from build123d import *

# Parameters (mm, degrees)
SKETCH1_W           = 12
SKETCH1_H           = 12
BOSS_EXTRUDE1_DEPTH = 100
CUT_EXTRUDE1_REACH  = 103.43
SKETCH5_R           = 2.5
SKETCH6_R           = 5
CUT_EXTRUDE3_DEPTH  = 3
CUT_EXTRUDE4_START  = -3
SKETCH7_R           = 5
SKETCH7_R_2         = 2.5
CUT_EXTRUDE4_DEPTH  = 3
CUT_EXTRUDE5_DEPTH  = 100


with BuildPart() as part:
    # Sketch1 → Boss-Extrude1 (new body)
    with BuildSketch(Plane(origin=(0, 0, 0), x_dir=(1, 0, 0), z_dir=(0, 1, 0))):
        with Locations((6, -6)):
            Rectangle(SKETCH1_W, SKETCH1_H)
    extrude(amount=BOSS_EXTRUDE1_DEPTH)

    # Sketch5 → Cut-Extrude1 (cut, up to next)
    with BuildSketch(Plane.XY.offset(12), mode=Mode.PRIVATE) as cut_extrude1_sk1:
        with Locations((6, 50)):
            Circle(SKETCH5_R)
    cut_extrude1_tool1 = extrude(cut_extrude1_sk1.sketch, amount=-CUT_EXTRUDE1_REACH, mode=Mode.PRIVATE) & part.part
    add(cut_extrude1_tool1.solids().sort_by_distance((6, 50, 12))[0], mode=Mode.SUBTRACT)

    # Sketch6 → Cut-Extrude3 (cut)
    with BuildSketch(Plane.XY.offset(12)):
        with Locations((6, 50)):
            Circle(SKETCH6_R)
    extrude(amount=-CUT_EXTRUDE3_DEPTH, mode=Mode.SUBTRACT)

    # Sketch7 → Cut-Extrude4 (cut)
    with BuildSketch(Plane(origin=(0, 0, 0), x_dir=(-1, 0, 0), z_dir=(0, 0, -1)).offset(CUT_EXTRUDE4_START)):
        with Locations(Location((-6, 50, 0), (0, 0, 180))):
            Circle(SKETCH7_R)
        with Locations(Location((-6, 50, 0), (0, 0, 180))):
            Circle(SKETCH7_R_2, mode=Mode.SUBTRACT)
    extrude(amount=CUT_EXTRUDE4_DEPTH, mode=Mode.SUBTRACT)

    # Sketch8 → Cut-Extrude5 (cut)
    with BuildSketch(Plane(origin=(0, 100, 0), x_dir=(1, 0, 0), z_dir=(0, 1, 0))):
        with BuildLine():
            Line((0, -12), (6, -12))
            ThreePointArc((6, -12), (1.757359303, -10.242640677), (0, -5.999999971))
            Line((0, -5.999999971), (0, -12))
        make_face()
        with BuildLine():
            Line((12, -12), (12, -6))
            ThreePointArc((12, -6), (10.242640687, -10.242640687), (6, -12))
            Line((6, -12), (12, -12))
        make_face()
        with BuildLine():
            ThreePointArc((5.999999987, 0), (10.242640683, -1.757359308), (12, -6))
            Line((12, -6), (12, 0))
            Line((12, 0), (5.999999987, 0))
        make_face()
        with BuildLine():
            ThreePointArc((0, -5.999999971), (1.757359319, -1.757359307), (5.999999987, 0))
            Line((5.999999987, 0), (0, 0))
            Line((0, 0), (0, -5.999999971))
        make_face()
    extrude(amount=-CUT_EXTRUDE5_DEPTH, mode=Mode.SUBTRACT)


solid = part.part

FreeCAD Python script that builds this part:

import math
import FreeCAD as App
import Part
import Sketcher

V = App.Vector


def add_polygon(sketch, points):
    """Adds a closed chain of lines whose ends are joined by coincident constraints."""
    first, n = sketch.GeometryCount, len(points)
    for a, b in zip(points, points[1:] + points[:1]):
        sketch.addGeometry(Part.LineSegment(App.Vector(*a, 0), App.Vector(*b, 0)), False)
    for i in range(n):
        sketch.addConstraint(Sketcher.Constraint("Coincident", first + i, 2, first + (i + 1) % n, 1))

doc = App.newDocument("Part")
body = doc.addObject("PartDesign::Body", "Body")

# Sketch on XZ plane
sketch1 = body.newObject("Sketcher::SketchObject", "Sketch")
sketch1.AttachmentSupport = (doc.getObject("XZ_Plane"), [""])
sketch1.MapMode = "FlatFace"
add_polygon(sketch1, [(0, 0), (0, 12), (12, 12), (12, 0)])  # lines 0-3
sketch1.addConstraint(Sketcher.Constraint("Vertical", 0))
sketch1.addConstraint(Sketcher.Constraint("Horizontal", 1))
sketch1.addConstraint(Sketcher.Constraint("Vertical", 2))
sketch1.addConstraint(Sketcher.Constraint("Horizontal", 3))
sketch1.addConstraint(Sketcher.Constraint("Coincident", 3, 2, -1, 1))
sketch1.addConstraint(Sketcher.Constraint("Equal", 3, 0))
sketch1.addConstraint(Sketcher.Constraint("DistanceX", 1, 1, 1, 2, 12.0))
pad1 = body.newObject("PartDesign::Pad", "Pad")
pad1.Profile = sketch1
pad1.Length = 100
pad1.Reversed = True

# Sketch on XY plane
sketch2 = body.newObject("Sketcher::SketchObject", "Sketch001")
sketch2.AttachmentSupport = (doc.getObject("XY_Plane"), [""])
sketch2.MapMode = "FlatFace"
sketch2.AttachmentOffset = App.Placement(V(0, 0, 12), App.Rotation())
sketch2.addGeometry(Part.Circle(V(6, 50, 0), V(0, 0, 1), 2.5), False)
sketch2.addConstraint(Sketcher.Constraint("Diameter", 0, 5.0))
sketch2.addConstraint(Sketcher.Constraint("DistanceX", -1, 1, 0, 3, 6.0))
sketch2.addConstraint(Sketcher.Constraint("DistanceY", -1, 1, 0, 3, 50.0))
pocket1 = body.newObject("PartDesign::Pocket", "Pocket")
pocket1.Profile = sketch2
pocket1.Type = "UpToFirst"

# Sketch on XY plane
sketch3 = body.newObject("Sketcher::SketchObject", "Sketch002")
sketch3.AttachmentSupport = (doc.getObject("XY_Plane"), [""])
sketch3.MapMode = "FlatFace"
sketch3.AttachmentOffset = App.Placement(V(0, 0, 12), App.Rotation())
sketch3.addGeometry(Part.Circle(V(6, 50, 0), V(0, 0, 1), 5), False)
sketch3.addConstraint(Sketcher.Constraint("Diameter", 0, 10.0))
sketch3.addConstraint(Sketcher.Constraint("DistanceX", -1, 1, 0, 3, 6.0))
sketch3.addConstraint(Sketcher.Constraint("DistanceY", -1, 1, 0, 3, 50.0))
pocket2 = body.newObject("PartDesign::Pocket", "Pocket001")
pocket2.Profile = sketch3
pocket2.Length = 3

# Sketch on XY plane
sketch4 = body.newObject("Sketcher::SketchObject", "Sketch003")
sketch4.AttachmentSupport = (doc.getObject("XY_Plane"), [""])
sketch4.MapMode = "FlatFace"
sketch4.AttachmentOffset = App.Placement(V(0, 0, 3), App.Rotation())
sketch4.addGeometry(Part.Circle(V(6, 50, 0), V(0, 0, 1), 5), False)
sketch4.addGeometry(Part.Circle(V(6, 50, 0), V(0, 0, 1), 2.5), False)
sketch4.addConstraint(Sketcher.Constraint("Coincident", 1, 3, 0, 3))
sketch4.addConstraint(Sketcher.Constraint("Diameter", 0, 10.0))
sketch4.addConstraint(Sketcher.Constraint("Diameter", 1, 5.0))
sketch4.addConstraint(Sketcher.Constraint("DistanceX", -1, 1, 0, 3, 6.0))
sketch4.addConstraint(Sketcher.Constraint("DistanceY", -1, 1, 0, 3, 50.0))
pocket3 = body.newObject("PartDesign::Pocket", "Pocket002")
pocket3.Profile = sketch4
pocket3.Length = 3

# Sketch on XZ plane
sketch5 = body.newObject("Sketcher::SketchObject", "Sketch004")
sketch5.AttachmentSupport = (doc.getObject("XZ_Plane"), [""])
sketch5.MapMode = "FlatFace"
sketch5.AttachmentOffset = App.Placement(V(0, 0, -100), App.Rotation())
sketch5.addGeometry(Part.LineSegment(V(0, 12, 0), V(6, 12, 0)), False)
sketch5.addGeometry(Part.ArcOfCircle(Part.Circle(V(6, 6, 0), V(0, 0, 1), 6), math.radians(90), math.radians(180)), False)
sketch5.addGeometry(Part.LineSegment(V(0, 6, 0), V(0, 12, 0)), False)
sketch5.addGeometry(Part.LineSegment(V(12, 12, 0), V(12, 6, 0)), False)
sketch5.addGeometry(Part.ArcOfCircle(Part.Circle(V(6, 6, 0), V(0, 0, 1), 6), math.radians(0), math.radians(90)), False)
sketch5.addGeometry(Part.LineSegment(V(6, 12, 0), V(12, 12, 0)), False)
sketch5.addGeometry(Part.ArcOfCircle(Part.Circle(V(6, 6, 0), V(0, 0, 1), 6), math.radians(-90), math.radians(0)), False)
sketch5.addGeometry(Part.LineSegment(V(12, 6, 0), V(12, 0, 0)), False)
sketch5.addGeometry(Part.LineSegment(V(12, 0, 0), V(6, 0, 0)), False)
sketch5.addGeometry(Part.ArcOfCircle(Part.Circle(V(6, 6, 0), V(0, 0, 1), 6), math.radians(-180), math.radians(-90)), False)
sketch5.addGeometry(Part.LineSegment(V(6, 0, 0), V(0, 0, 0)), False)
sketch5.addGeometry(Part.LineSegment(V(0, 0, 0), V(0, 6, 0)), False)
sketch5.addConstraint(Sketcher.Constraint("Tangent", 0, 2, 1, 1))
sketch5.addConstraint(Sketcher.Constraint("Tangent", 1, 2, 2, 1))
sketch5.addConstraint(Sketcher.Constraint("Coincident", 2, 2, 0, 1))
sketch5.addConstraint(Sketcher.Constraint("Tangent", 3, 2, 4, 1))
sketch5.addConstraint(Sketcher.Constraint("Tangent", 4, 2, 5, 1))
sketch5.addConstraint(Sketcher.Constraint("Coincident", 5, 2, 3, 1))
sketch5.addConstraint(Sketcher.Constraint("Tangent", 6, 2, 7, 1))
sketch5.addConstraint(Sketcher.Constraint("Coincident", 7, 2, 8, 1))
sketch5.addConstraint(Sketcher.Constraint("Tangent", 8, 2, 6, 1))
sketch5.addConstraint(Sketcher.Constraint("Tangent", 9, 2, 10, 1))
sketch5.addConstraint(Sketcher.Constraint("Coincident", 10, 2, 11, 1))
sketch5.addConstraint(Sketcher.Constraint("Tangent", 11, 2, 9, 1))
sketch5.addConstraint(Sketcher.Constraint("Horizontal", 0))
sketch5.addConstraint(Sketcher.Constraint("Vertical", 2))
sketch5.addConstraint(Sketcher.Constraint("Vertical", 3))
sketch5.addConstraint(Sketcher.Constraint("Horizontal", 5))
sketch5.addConstraint(Sketcher.Constraint("Vertical", 7))
sketch5.addConstraint(Sketcher.Constraint("Horizontal", 8))
sketch5.addConstraint(Sketcher.Constraint("Horizontal", 10))
sketch5.addConstraint(Sketcher.Constraint("Vertical", 11))
sketch5.addConstraint(Sketcher.Constraint("Coincident", 10, 2, -1, 1))
sketch5.addConstraint(Sketcher.Constraint("Coincident", 4, 3, 1, 3))
sketch5.addConstraint(Sketcher.Constraint("Coincident", 6, 3, 1, 3))
sketch5.addConstraint(Sketcher.Constraint("Coincident", 9, 3, 1, 3))
sketch5.addConstraint(Sketcher.Constraint("Equal", 1, 4))
sketch5.addConstraint(Sketcher.Constraint("Equal", 4, 6))
sketch5.addConstraint(Sketcher.Constraint("Equal", 6, 9))
sketch5.addConstraint(Sketcher.Constraint("Radius", 1, 6.0))
pocket4 = body.newObject("PartDesign::Pocket", "Pocket003")
pocket4.Profile = sketch5
pocket4.Length = 100
pocket4.Reversed = True

doc.recompute()
